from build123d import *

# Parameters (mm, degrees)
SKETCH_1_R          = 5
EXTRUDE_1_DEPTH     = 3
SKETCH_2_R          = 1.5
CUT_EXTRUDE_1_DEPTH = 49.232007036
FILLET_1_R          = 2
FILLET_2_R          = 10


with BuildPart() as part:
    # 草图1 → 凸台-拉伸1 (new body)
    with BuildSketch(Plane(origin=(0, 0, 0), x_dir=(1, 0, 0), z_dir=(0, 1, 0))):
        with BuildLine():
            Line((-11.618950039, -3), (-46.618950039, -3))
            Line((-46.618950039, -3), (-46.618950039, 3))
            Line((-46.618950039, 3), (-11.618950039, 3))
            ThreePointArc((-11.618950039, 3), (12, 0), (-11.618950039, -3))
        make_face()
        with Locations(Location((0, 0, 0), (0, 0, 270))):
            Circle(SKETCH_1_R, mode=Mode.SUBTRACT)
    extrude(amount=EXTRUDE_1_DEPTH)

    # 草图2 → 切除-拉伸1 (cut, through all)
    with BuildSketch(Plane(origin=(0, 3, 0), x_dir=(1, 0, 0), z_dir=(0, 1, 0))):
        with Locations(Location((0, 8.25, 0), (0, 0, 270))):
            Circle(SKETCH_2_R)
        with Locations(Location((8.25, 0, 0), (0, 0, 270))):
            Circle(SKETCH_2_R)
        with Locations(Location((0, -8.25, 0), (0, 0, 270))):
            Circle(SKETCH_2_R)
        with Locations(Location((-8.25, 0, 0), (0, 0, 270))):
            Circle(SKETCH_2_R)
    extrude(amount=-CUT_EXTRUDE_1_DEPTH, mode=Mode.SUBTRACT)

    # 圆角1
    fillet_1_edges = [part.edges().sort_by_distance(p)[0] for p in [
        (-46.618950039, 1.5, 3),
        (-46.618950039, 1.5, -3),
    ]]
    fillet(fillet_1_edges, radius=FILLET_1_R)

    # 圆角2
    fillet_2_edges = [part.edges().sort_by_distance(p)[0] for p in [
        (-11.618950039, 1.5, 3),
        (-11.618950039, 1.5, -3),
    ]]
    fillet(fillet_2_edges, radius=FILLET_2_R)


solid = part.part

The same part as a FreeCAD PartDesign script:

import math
import FreeCAD as App
import Part
import Sketcher

V = App.Vector
Q = App.Units.Quantity


def edges_at(feature, points):
    """Names of the edges that pass closest to the given points."""
    edges = feature.Shape.Edges
    near = lambda p: min(range(len(edges)), key=lambda i: edges[i].distToShape(Part.Vertex(*p))[0])
    return sorted({f"Edge{near(p) + 1}" for p in points})

doc = App.newDocument("Part")
params = doc.addObject("Spreadsheet::Sheet", "Params")
for row, (alias, value) in enumerate([
    ("sketch1_diameter", "10 mm"),
    ("sketch1_radius", "12 mm"),
    ("sketch1_width", "35 mm"),
    ("sketch1_height", "6 mm"),
    ("pad1_length", "3 mm"),
    ("sketch2_diameter", "3 mm"),
    ("fillet_radius", "2 mm"),
    ("fillet2_radius", "10 mm"),
], start=1):
    params.set(f"A{row}", alias)
    params.set(f"B{row}", "=" + value)
    params.setAlias(f"B{row}", alias)

body = doc.addObject("PartDesign::Body", "Body")

# Sketch on XZ plane
sketch1 = body.newObject("Sketcher::SketchObject", "Sketch")
sketch1.AttachmentSupport = (doc.getObject("XZ_Plane"), [""])
sketch1.MapMode = "FlatFace"
sketch1.addGeometry([
    Part.LineSegment(V(-47, 3, 0), V(-12, 3, 0)),  # 0
    Part.ArcOfCircle(Part.Circle(V(0, 0, 0), V(0, 0, 1), 12), math.radians(-166), math.radians(166)),  # 1
    Part.LineSegment(V(-12, -3, 0), V(-47, -3, 0)),  # 2
    Part.LineSegment(V(-47, -3, 0), V(-47, 3, 0)),  # 3
    Part.Circle(V(0, 0, 0), V(0, 0, 1), 5),  # 4
], False)
sketch1.addConstraint([
    Sketcher.Constraint("Coincident", 0, 2, 1, 2),
    Sketcher.Constraint("Coincident", 1, 1, 2, 1),
    Sketcher.Constraint("Coincident", 2, 2, 3, 1),
    Sketcher.Constraint("Coincident", 3, 2, 0, 1),
    Sketcher.Constraint("Horizontal", 0),
    Sketcher.Constraint("Horizontal", 2),
    Sketcher.Constraint("Vertical", 3),
    Sketcher.Constraint("Coincident", 1, 3, -1, 1),
    Sketcher.Constraint("Coincident", 4, 3, -1, 1),
    Sketcher.Constraint("Vertical", 0, 2, 1, 1),
    Sketcher.Constraint("Diameter", 4, Q("10 mm")),
    Sketcher.Constraint("Radius", 1, Q("12 mm")),
    Sketcher.Constraint("DistanceX", 0, 1, 0, 2, Q("35 mm")),
    Sketcher.Constraint("DistanceY", 3, 1, 3, 2, Q("6 mm")),
])
sketch1.setExpression("Constraints[10]", "Params.sketch1_diameter")
sketch1.setExpression("Constraints[11]", "Params.sketch1_radius")
sketch1.setExpression("Constraints[12]", "Params.sketch1_width")
sketch1.setExpression("Constraints[13]", "Params.sketch1_height")
pad1 = body.newObject("PartDesign::Pad", "Pad")
pad1.Profile = sketch1
pad1.setExpression("Length", "Params.pad1_length")
pad1.Reversed = True

# Sketch on XZ plane
sketch2 = body.newObject("Sketcher::SketchObject", "Sketch001")
sketch2.AttachmentSupport = (doc.getObject("XZ_Plane"), [""])
sketch2.MapMode = "FlatFace"
sketch2.AttachmentOffset = App.Placement(V(0, 0, -3), App.Rotation())
sketch2.addGeometry([
    Part.Circle(V(0, -8.2, 0), V(0, 0, 1), 1.5),
    Part.Circle(V(8.2, 0, 0), V(0, 0, 1), 1.5),
    Part.Circle(V(0, 8.2, 0), V(0, 0, 1), 1.5),
    Part.Circle(V(-8.2, 0, 0), V(0, 0, 1), 1.5),
], False)
sketch2.addConstraint([
    Sketcher.Constraint("Equal", 0, 1),
    Sketcher.Constraint("Equal", 1, 2),
    Sketcher.Constraint("Equal", 2, 3),
    Sketcher.Constraint("Symmetric", 0, 3, 2, 3, -1, 1),
    Sketcher.Constraint("Symmetric", 1, 3, 3, 3, -1, 1),
    Sketcher.Constraint("PointOnObject", 0, 3, -2),
    Sketcher.Constraint("PointOnObject", 1, 3, -1),
    Sketcher.Constraint("Diameter", 0, Q("3 mm")),
    Sketcher.Constraint("DistanceY", 0, 3, 2, 3, Q("16.5 mm")),
    Sketcher.Constraint("DistanceX", 3, 3, 1, 3, Q("16.5 mm")),
])
sketch2.setExpression("Constraints[7]", "Params.sketch2_diameter")
pocket1 = body.newObject("PartDesign::Pocket", "Pocket")
pocket1.Profile = sketch2
pocket1.Type = "ThroughAll"
pocket1.Reversed = True
doc.recompute()

fillet = body.newObject("PartDesign::Fillet", "Fillet")
fillet.Base = (pocket1, edges_at(pocket1, [(-46.619, 1.5, 3), (-46.619, 1.5, -3)]))
fillet.setExpression("Radius", "Params.fillet_radius")
doc.recompute()

fillet2 = body.newObject("PartDesign::Fillet", "Fillet001")
fillet2.Base = (fillet, edges_at(fillet, [(-11.619, 1.5, 3), (-11.619, 1.5, -3)]))
fillet2.setExpression("Radius", "Params.fillet2_radius")

doc.recompute()
